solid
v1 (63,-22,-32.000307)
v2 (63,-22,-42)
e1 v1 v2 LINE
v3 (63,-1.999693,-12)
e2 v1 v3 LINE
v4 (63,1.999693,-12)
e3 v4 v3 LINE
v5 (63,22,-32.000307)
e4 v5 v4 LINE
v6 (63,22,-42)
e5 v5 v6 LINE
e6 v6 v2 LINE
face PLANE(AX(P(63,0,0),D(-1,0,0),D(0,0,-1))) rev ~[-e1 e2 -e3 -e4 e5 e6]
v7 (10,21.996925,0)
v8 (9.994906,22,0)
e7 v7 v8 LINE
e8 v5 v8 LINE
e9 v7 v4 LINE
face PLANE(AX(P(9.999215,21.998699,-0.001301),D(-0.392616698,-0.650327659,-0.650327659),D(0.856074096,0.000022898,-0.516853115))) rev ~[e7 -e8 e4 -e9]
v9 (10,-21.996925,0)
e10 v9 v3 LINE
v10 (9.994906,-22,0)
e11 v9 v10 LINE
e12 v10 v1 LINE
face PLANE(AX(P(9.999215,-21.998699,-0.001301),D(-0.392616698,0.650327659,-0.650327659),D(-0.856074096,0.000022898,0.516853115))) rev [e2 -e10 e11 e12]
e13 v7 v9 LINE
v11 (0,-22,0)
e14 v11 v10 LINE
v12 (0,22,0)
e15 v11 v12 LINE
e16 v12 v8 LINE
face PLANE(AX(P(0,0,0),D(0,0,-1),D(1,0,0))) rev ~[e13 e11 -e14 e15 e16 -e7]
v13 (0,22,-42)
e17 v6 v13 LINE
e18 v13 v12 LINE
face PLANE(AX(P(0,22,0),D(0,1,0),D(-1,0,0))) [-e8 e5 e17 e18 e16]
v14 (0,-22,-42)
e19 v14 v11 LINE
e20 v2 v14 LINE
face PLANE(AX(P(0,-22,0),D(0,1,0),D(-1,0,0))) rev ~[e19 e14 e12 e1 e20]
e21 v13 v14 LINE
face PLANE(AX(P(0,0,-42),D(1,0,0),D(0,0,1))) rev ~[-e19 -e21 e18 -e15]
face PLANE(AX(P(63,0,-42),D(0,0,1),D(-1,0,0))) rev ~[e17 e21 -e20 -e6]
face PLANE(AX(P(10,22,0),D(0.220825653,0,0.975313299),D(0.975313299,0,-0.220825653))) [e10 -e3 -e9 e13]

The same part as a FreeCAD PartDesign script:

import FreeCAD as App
import Part
import Sketcher


def add_polygon(sketch, points):
    """Adds a closed chain of lines whose ends are joined by coincident constraints."""
    first, n = sketch.GeometryCount, len(points)
    for a, b in zip(points, points[1:] + points[:1]):
        sketch.addGeometry(Part.LineSegment(App.Vector(*a, 0), App.Vector(*b, 0)), False)
    for i in range(n):
        sketch.addConstraint(Sketcher.Constraint("Coincident", first + i, 2, first + (i + 1) % n, 1))

doc = App.newDocument("Part")
body = doc.addObject("PartDesign::Body", "Body")

# Sketch on XZ plane
sketch1 = body.newObject("Sketcher::SketchObject", "Sketch")
sketch1.AttachmentSupport = (doc.getObject("XZ_Plane"), [""])
sketch1.MapMode = "FlatFace"
add_polygon(sketch1, [(0, -42), (0, 0), (63, 0), (63, -42)])  # lines 0-3
sketch1.addConstraint(Sketcher.Constraint("Vertical", 0))
sketch1.addConstraint(Sketcher.Constraint("Horizontal", 1))
sketch1.addConstraint(Sketcher.Constraint("Vertical", 2))
sketch1.addConstraint(Sketcher.Constraint("Horizontal", 3))
sketch1.addConstraint(Sketcher.Constraint("Coincident", 0, 2, -1, 1))
sketch1.addConstraint(Sketcher.Constraint("DistanceX", 1, 1, 1, 2, 63.0))
sketch1.addConstraint(Sketcher.Constraint("DistanceY", 0, 1, 0, 2, 42.0))
pad1 = body.newObject("PartDesign::Pad", "Pad")
pad1.Profile = sketch1
pad1.Length = 44
pad1.Midplane = True

# Sketch on XZ plane
sketch2 = body.newObject("Sketcher::SketchObject", "Sketch001")
sketch2.AttachmentSupport = (doc.getObject("XZ_Plane"), [""])
sketch2.MapMode = "FlatFace"
sketch2.AttachmentOffset = App.Placement(App.Vector(0, 0, -22), App.Rotation())
add_polygon(sketch2, [(63, -12), (10, 0), (63, 0)])  # lines 0-2
sketch2.addConstraint(Sketcher.Constraint("Horizontal", 1))
sketch2.addConstraint(Sketcher.Constraint("Vertical", 2))
sketch2.addConstraint(Sketcher.Constraint("PointOnObject", 0, 2, -1))
sketch2.addConstraint(Sketcher.Constraint("DistanceX", -1, 1, 0, 2, 10.0))
sketch2.addConstraint(Sketcher.Constraint("DistanceX", 1, 1, 1, 2, 53.0))
sketch2.addConstraint(Sketcher.Constraint("DistanceY", 2, 2, 2, 1, 12.0))
pocket1 = body.newObject("PartDesign::Pocket", "Pocket")
pocket1.Profile = sketch2
pocket1.Length = 60
pocket1.Reversed = True

# Sketch on an angled plane
sketch3 = body.newObject("Sketcher::SketchObject", "Sketch002")
sketch3.Placement = App.Placement(App.Vector(10, 22, 0), App.Rotation(App.Vector(0.856074096, 0.000022898, -0.516853115), App.Vector(0.336138768, -0.759653826, 0.556719673), App.Vector(-0.392616698, -0.650327659, -0.650327659), "ZXY"))
add_polygon(sketch3, [(-15, 29), (-15, -12), (94, -12), (94, 29)])  # lines 0-3
sketch3.addConstraint(Sketcher.Constraint("Vertical", 0))
sketch3.addConstraint(Sketcher.Constraint("Horizontal", 1))
sketch3.addConstraint(Sketcher.Constraint("Vertical", 2))
sketch3.addConstraint(Sketcher.Constraint("Horizontal", 3))
sketch3.addConstraint(Sketcher.Constraint("DistanceX", 1, 1, 1, 2, 108.8713))
sketch3.addConstraint(Sketcher.Constraint("DistanceY", 0, 2, 0, 1, 41.1384))
sketch3.addConstraint(Sketcher.Constraint("DistanceX", -1, 1, 1, 2, 93.717))
sketch3.addConstraint(Sketcher.Constraint("DistanceY", 0, 2, -1, 1, 12.3218))
pocket2 = body.newObject("PartDesign::Pocket", "Pocket001")
pocket2.Profile = sketch3
pocket2.Length = 40
doc.recompute()

mirrored = body.newObject("PartDesign::Mirrored", "Mirrored")
mirrored.Originals = [pocket2]
mirrored.MirrorPlane = (doc.getObject("XZ_Plane"), [""])
body.Tip = mirrored

doc.recompute()
